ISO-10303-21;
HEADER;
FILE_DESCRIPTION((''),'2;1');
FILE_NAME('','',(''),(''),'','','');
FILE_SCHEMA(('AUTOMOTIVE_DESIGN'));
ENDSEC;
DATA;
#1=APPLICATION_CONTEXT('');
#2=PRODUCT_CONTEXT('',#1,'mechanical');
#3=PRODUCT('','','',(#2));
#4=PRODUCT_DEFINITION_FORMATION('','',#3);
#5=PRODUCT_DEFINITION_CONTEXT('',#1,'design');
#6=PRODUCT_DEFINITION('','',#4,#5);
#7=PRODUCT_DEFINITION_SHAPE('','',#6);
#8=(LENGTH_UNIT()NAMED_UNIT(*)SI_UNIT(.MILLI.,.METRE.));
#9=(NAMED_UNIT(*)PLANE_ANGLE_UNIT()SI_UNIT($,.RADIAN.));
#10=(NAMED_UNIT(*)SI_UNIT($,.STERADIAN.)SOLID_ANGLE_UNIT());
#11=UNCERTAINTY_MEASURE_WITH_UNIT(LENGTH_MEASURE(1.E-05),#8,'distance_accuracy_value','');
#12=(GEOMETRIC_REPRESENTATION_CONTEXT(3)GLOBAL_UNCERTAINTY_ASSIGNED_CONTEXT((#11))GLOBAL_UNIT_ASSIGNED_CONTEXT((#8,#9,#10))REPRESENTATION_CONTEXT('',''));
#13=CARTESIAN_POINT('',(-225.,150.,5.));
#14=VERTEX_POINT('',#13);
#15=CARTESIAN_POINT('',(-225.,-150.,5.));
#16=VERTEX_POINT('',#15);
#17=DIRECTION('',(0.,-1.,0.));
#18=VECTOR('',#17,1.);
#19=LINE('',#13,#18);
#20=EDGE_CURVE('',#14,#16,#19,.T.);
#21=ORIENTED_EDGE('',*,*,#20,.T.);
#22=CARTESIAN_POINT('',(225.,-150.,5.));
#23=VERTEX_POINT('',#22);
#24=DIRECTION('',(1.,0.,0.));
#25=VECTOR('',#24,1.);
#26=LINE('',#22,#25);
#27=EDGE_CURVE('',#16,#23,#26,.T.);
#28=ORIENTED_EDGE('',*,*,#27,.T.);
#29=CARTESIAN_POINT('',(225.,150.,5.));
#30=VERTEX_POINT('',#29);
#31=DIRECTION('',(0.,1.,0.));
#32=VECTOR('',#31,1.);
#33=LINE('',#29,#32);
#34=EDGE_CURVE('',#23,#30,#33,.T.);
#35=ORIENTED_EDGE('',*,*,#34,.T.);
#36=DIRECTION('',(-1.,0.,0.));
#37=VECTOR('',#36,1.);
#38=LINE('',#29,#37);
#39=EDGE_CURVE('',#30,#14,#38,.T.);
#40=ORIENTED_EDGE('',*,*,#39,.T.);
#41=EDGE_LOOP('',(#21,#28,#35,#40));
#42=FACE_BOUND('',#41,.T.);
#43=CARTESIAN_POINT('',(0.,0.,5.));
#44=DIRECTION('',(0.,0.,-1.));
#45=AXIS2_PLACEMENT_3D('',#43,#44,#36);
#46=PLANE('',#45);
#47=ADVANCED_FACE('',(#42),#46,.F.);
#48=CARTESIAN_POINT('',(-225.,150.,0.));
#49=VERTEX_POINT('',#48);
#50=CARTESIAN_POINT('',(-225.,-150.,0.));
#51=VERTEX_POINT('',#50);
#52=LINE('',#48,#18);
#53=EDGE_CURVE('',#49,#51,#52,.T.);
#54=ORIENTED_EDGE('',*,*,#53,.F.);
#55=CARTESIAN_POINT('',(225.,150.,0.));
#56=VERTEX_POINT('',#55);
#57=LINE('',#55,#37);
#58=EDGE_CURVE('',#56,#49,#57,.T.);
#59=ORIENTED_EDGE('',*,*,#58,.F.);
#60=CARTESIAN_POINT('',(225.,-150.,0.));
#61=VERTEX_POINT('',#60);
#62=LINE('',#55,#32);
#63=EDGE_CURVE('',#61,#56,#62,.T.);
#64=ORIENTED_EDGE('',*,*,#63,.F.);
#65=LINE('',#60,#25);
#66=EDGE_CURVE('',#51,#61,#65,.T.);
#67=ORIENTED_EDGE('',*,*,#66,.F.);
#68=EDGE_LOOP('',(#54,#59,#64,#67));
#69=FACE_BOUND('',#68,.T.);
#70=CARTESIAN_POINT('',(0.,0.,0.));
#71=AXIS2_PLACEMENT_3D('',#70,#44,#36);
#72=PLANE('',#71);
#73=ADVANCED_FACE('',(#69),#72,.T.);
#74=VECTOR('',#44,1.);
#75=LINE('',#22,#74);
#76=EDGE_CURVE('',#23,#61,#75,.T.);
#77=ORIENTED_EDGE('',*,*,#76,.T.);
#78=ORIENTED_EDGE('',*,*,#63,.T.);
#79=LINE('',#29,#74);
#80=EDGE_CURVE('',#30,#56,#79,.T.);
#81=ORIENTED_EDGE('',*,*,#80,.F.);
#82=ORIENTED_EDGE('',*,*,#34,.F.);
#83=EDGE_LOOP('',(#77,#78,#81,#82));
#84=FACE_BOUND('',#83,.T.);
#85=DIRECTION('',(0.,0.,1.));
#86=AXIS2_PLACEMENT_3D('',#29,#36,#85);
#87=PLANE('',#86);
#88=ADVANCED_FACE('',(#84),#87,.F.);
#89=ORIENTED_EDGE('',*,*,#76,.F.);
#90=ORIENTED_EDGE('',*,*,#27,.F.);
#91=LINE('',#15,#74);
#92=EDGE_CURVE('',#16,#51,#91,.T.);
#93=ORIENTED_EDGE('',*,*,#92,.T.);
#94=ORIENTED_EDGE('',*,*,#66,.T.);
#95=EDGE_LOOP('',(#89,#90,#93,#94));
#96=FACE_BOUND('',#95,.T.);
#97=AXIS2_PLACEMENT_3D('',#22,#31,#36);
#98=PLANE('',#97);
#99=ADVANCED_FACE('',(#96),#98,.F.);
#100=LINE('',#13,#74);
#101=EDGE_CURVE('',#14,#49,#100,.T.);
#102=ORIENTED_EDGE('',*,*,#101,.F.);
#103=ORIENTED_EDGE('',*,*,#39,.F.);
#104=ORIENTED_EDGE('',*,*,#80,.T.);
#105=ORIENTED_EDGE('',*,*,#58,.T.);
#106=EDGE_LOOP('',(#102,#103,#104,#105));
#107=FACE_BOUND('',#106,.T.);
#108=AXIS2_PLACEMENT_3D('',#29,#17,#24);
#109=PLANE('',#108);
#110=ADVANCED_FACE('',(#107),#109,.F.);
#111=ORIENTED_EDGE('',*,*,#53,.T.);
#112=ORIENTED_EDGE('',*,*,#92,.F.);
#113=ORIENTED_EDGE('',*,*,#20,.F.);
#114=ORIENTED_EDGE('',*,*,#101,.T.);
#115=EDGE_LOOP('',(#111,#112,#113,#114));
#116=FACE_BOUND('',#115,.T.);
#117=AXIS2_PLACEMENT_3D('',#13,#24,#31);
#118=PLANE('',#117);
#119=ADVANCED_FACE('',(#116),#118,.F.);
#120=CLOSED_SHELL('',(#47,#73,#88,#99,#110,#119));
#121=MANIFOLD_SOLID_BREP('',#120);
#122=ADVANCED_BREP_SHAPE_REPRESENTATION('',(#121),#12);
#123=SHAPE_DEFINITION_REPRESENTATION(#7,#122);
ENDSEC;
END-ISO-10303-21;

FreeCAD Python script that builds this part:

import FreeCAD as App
import Part
import Sketcher
from FreeCAD import Vector
Q = App.Units.Quantity


def add_polygon(sketch, points):
    """Adds a closed chain of lines whose ends are joined by coincident constraints."""
    first, n = sketch.GeometryCount, len(points)
    for a, b in zip(points, points[1:] + points[:1]):
        sketch.addGeometry(Part.LineSegment(App.Vector(*a, 0), App.Vector(*b, 0)), False)
    for i in range(n):
        sketch.addConstraint(Sketcher.Constraint("Coincident", first + i, 2, first + (i + 1) % n, 1))

doc = App.newDocument("Part")
body = doc.addObject("PartDesign::Body", "Body")

sketch1 = body.newObject("Sketcher::SketchObject", "Sketch")
sketch1.AttachmentSupport = (doc.getObject("XY_Plane"), [""])
sketch1.MapMode = "FlatFace"
add_polygon(sketch1, [(-225, 150), (-225, -150), (225, -150), (225, 150)])
sketch1.addConstraint(Sketcher.Constraint("Vertical", 0))
sketch1.addConstraint(Sketcher.Constraint("Horizontal", 1))
sketch1.addConstraint(Sketcher.Constraint("Vertical", 2))
sketch1.addConstraint(Sketcher.Constraint("Horizontal", 3))
sketch1.addConstraint(Sketcher.Constraint("Symmetric", 0, 2, 2, 2, -1, 1))
sketch1.addConstraint(Sketcher.Constraint("DistanceX", 1, 1, 1, 2, Q("450 mm")))
sketch1.addConstraint(Sketcher.Constraint("DistanceY", 0, 2, 0, 1, Q("300 mm")))
pad1 = body.newObject("PartDesign::Pad", "Pad")
pad1.Profile = sketch1
pad1.Length = 5

doc.recompute()
